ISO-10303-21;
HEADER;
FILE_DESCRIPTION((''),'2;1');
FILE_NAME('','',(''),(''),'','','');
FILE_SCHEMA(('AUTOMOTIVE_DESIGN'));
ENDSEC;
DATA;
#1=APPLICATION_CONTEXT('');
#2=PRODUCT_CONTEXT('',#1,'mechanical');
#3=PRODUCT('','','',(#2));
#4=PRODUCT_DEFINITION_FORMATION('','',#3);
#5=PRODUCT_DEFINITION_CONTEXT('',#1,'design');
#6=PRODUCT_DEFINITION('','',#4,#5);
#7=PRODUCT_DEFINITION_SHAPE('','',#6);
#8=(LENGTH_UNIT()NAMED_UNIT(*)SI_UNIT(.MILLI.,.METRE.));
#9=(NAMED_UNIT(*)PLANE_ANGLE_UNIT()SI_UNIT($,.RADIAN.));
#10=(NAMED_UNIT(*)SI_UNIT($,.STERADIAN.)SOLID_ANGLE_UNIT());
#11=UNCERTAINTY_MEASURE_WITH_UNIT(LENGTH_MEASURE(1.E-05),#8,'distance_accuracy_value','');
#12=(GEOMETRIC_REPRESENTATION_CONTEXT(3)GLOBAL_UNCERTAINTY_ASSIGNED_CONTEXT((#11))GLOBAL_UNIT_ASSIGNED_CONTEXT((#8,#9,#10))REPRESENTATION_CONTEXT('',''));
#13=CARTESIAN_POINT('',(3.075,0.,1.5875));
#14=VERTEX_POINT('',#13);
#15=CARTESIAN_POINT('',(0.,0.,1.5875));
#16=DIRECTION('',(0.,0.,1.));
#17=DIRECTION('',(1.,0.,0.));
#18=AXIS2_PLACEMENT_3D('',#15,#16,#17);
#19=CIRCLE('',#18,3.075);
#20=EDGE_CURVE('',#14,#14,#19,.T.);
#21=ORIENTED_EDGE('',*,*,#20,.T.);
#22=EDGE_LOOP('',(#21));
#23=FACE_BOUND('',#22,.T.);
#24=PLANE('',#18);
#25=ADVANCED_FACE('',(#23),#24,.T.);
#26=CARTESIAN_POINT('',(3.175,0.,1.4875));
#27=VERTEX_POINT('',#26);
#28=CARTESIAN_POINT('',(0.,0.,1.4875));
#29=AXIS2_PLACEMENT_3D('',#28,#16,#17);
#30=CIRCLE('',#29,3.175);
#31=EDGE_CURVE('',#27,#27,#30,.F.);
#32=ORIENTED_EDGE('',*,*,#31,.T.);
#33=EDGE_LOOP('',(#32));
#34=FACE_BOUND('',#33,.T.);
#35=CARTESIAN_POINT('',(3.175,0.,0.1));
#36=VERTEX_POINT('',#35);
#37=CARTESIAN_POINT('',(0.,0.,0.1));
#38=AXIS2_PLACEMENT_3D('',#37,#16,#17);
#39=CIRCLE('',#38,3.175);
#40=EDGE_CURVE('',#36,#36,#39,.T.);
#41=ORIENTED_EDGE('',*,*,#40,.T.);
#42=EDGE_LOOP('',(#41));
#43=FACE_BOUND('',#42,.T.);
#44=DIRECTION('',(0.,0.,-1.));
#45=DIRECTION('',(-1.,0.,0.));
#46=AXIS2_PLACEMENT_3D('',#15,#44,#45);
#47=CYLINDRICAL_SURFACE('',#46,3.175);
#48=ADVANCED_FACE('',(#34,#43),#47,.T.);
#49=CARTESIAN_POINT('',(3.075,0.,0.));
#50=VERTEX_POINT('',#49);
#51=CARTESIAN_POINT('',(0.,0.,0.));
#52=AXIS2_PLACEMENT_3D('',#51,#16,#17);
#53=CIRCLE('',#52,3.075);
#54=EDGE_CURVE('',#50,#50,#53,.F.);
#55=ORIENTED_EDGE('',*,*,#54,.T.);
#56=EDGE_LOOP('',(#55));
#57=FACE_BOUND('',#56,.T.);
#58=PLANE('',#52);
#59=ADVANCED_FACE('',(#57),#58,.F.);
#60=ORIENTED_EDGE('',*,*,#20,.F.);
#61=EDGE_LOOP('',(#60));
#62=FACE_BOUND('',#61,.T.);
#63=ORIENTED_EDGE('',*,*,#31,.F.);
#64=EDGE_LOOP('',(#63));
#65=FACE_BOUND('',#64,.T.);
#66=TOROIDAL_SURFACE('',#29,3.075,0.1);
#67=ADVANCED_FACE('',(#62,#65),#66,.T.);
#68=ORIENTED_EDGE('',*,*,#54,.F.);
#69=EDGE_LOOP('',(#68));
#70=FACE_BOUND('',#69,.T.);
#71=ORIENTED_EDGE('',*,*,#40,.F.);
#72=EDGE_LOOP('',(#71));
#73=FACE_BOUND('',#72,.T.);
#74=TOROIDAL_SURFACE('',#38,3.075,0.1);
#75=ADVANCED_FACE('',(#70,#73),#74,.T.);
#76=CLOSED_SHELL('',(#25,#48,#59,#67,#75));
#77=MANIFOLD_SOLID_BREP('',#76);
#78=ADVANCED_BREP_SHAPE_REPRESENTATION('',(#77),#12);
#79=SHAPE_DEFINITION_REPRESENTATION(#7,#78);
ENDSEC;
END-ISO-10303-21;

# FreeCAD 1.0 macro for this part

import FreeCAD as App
import Part
import Sketcher
Q = App.Units.Quantity


def edges_at(feature, points):
    """Names of the edges that pass closest to the given points."""
    edges = feature.Shape.Edges
    near = lambda p: min(range(len(edges)), key=lambda i: edges[i].distToShape(Part.Vertex(*p))[0])
    return sorted({f"Edge{near(p) + 1}" for p in points})

doc = App.newDocument("Part")
body = doc.addObject("PartDesign::Body", "Body")

# Sketch on XY plane
sketch1 = doc.addObject("Sketcher::SketchObject", "Sketch")
body.addObject(sketch1)
sketch1.AttachmentSupport = (doc.XY_Plane, [""])
sketch1.MapMode = "FlatFace"
sketch1.addGeometry(Part.Circle(App.Vector(0, 0, 0), App.Vector(0, 0, 1), 3.2), False)
sketch1.addConstraint(Sketcher.Constraint("Coincident", 0, 3, -1, 1))
sketch1.addConstraint(Sketcher.Constraint("Diameter", 0, Q("0.25 in")))
pad1 = doc.addObject("PartDesign::Pad", "Pad")
body.addObject(pad1)
pad1.Profile = sketch1
pad1.Length = Q("0.0625 in")
doc.recompute()

fillet = doc.addObject("PartDesign::Fillet", "Fillet")
body.addObject(fillet)
fillet.Base = (pad1, edges_at(pad1, [(-3.175, 0, 0), (-3.175, 0, 1.587)]))
fillet.Radius = 0.1

doc.recompute()
